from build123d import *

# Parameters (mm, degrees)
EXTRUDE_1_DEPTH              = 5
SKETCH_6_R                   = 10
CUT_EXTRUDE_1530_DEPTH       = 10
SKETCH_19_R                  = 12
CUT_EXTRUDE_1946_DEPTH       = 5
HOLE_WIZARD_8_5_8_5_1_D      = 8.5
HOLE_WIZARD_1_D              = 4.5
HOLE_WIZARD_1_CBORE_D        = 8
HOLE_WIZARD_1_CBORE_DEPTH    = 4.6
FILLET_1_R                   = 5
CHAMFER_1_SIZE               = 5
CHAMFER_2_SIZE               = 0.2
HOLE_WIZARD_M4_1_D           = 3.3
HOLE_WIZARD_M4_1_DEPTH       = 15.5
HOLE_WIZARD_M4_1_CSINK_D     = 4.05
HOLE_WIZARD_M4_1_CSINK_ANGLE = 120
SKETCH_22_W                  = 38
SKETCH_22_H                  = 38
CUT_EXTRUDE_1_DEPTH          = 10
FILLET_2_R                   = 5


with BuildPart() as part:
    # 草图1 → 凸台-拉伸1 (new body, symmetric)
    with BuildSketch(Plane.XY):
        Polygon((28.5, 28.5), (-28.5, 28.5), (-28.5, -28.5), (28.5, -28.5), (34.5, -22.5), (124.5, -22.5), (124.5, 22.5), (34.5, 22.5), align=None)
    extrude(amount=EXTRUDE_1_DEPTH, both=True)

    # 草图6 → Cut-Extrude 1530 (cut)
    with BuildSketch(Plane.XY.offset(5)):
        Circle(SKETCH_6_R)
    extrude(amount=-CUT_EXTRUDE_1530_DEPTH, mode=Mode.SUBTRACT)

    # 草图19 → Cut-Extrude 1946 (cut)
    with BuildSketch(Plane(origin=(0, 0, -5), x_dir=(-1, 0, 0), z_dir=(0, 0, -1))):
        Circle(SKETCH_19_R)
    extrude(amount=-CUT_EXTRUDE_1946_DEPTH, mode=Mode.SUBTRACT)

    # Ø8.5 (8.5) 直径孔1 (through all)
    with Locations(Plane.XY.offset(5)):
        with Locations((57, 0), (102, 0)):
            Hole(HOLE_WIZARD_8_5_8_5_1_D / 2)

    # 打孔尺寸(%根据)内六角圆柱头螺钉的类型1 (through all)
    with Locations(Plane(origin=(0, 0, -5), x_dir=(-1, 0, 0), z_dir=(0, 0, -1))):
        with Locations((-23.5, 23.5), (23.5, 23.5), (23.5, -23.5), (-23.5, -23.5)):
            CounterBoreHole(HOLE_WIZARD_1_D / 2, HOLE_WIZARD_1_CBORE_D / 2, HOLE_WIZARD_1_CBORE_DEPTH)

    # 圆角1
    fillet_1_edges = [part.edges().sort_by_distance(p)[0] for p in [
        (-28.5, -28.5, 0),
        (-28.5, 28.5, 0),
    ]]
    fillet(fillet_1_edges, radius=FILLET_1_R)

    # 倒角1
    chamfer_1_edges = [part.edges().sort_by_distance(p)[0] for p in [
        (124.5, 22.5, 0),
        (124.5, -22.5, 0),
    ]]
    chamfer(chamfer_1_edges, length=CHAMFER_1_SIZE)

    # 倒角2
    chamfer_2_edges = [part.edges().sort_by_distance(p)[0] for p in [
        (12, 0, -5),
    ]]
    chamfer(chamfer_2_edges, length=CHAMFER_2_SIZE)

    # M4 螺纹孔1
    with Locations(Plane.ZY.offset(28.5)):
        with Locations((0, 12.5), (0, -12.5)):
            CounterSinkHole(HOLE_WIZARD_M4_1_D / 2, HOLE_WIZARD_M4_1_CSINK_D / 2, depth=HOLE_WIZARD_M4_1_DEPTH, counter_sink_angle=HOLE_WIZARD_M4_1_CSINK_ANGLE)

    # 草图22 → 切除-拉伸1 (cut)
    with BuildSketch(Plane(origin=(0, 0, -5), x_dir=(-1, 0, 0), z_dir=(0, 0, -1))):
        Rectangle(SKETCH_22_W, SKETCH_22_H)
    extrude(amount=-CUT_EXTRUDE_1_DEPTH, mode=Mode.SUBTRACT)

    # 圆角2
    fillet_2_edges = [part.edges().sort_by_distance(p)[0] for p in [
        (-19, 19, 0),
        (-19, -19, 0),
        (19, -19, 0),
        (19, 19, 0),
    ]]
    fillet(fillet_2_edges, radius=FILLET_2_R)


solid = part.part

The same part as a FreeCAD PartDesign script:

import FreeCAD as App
import Part
import Sketcher
Q = App.Units.Quantity


def edges_at(feature, points):
    """Names of the edges that pass closest to the given points."""
    edges = feature.Shape.Edges
    near = lambda p: min(range(len(edges)), key=lambda i: edges[i].distToShape(Part.Vertex(*p))[0])
    return sorted({f"Edge{near(p) + 1}" for p in points})


def add_polygon(sketch, points):
    """Adds a closed chain of lines whose ends are joined by coincident constraints."""
    first, n = sketch.GeometryCount, len(points)
    for a, b in zip(points, points[1:] + points[:1]):
        sketch.addGeometry(Part.LineSegment(App.Vector(*a, 0), App.Vector(*b, 0)), False)
    for i in range(n):
        sketch.addConstraint(Sketcher.Constraint("Coincident", first + i, 2, first + (i + 1) % n, 1))

doc = App.newDocument("Part")
params = doc.addObject("Spreadsheet::Sheet", "Params")
for row, (alias, value) in enumerate([
    ("sketch1_width", "57 mm"),
    ("sketch1_width2", "90 mm"),
    ("sketch1_height", "45 mm"),
    ("pad1_length", "10 mm"),
    ("sketch2_diameter", "20 mm"),
    ("pocket1_length", "10 mm"),
    ("sketch3_diameter", "24 mm"),
    ("pocket2_length", "5 mm"),
    ("sketch4_diameter", "8.5 mm"),
    ("hole_diameter", "8.5 mm"),
    ("sketch5_diameter", "4.5 mm"),
    ("hole2_diameter", "4.5 mm"),
    ("hole2_cbore_diameter", "8 mm"),
    ("hole2_cbore_depth", "4.6 mm"),
    ("fillet_radius", "5 mm"),
    ("chamfer_size", "5 mm"),
    ("chamfer2_size", "0.2 mm"),
    ("sketch6_diameter", "3.3 mm"),
    ("hole3_diameter", "3.3 mm"),
    ("hole3_depth", "15.5 mm"),
    ("hole3_csink_diameter", "4.05 mm"),
    ("sketch7_width", "38 mm"),
    ("pocket3_length", "10 mm"),
    ("fillet2_radius", "5 mm"),
], start=1):
    params.set(f"A{row}", alias)
    params.set(f"B{row}", "=" + value)
    params.setAlias(f"B{row}", alias)

body = doc.addObject("PartDesign::Body", "Body")

sketch1 = body.newObject("Sketcher::SketchObject", "Sketch")
sketch1.AttachmentSupport = (doc.getObject("XY_Plane"), [""])
sketch1.MapMode = "FlatFace"
add_polygon(sketch1, [(28.5, 28.5), (-28.5, 28.5), (-28.5, -28.5), (28.5, -28.5), (34.5, -22.5), (124.5, -22.5), (124.5, 22.5), (34.5, 22.5)])
sketch1.addConstraint([
    Sketcher.Constraint("Horizontal", 0),
    Sketcher.Constraint("Vertical", 1),
    Sketcher.Constraint("Horizontal", 2),
    Sketcher.Constraint("Horizontal", 4),
    Sketcher.Constraint("Vertical", 5),
    Sketcher.Constraint("Horizontal", 6),
    Sketcher.Constraint("Symmetric", 0, 2, 2, 2, -1, 1),
    Sketcher.Constraint("Symmetric", 3, 2, 6, 2, -1),
    Sketcher.Constraint("Perpendicular", 3, 7),
    Sketcher.Constraint("Vertical", 2, 2, 7, 2),
    Sketcher.Constraint("Equal", 2, 1),
    Sketcher.Constraint("DistanceX", 0, 2, 0, 1, Q("57 mm")),
    Sketcher.Constraint("DistanceX", 4, 1, 4, 2, Q("90 mm")),
    Sketcher.Constraint("DistanceY", 5, 1, 5, 2, Q("45 mm")),
])
sketch1.setExpression("Constraints[19]", "Params.sketch1_width")
sketch1.setExpression("Constraints[20]", "Params.sketch1_width2")
sketch1.setExpression("Constraints[21]", "Params.sketch1_height")
pad1 = body.newObject("PartDesign::Pad", "Pad")
pad1.Profile = sketch1
pad1.setExpression("Length", "Params.pad1_length")
pad1.Midplane = True

sketch2 = body.newObject("Sketcher::SketchObject", "Sketch001")
sketch2.AttachmentSupport = (doc.getObject("XY_Plane"), [""])
sketch2.MapMode = "FlatFace"
sketch2.AttachmentOffset = App.Placement(App.Vector(0, 0, 5), App.Rotation())
sketch2.addGeometry(Part.Circle(App.Vector(0, 0, 0), App.Vector(0, 0, 1), 10), False)
sketch2.addConstraint([
    Sketcher.Constraint("Coincident", 0, 3, -1, 1),
    Sketcher.Constraint("Diameter", 0, Q("20 mm")),
])
sketch2.setExpression("Constraints[1]", "Params.sketch2_diameter")
pocket1 = body.newObject("PartDesign::Pocket", "Pocket")
pocket1.Profile = sketch2
pocket1.setExpression("Length", "Params.pocket1_length")

sketch3 = body.newObject("Sketcher::SketchObject", "Sketch002")
sketch3.AttachmentSupport = (doc.getObject("XY_Plane"), [""])
sketch3.MapMode = "FlatFace"
sketch3.AttachmentOffset = App.Placement(App.Vector(0, 0, -5), App.Rotation())
sketch3.addGeometry(Part.Circle(App.Vector(0, 0, 0), App.Vector(0, 0, 1), 12), False)
sketch3.addConstraint([
    Sketcher.Constraint("Coincident", 0, 3, -1, 1),
    Sketcher.Constraint("Diameter", 0, Q("24 mm")),
])
sketch3.setExpression("Constraints[1]", "Params.sketch3_diameter")
pocket2 = body.newObject("PartDesign::Pocket", "Pocket001")
pocket2.Profile = sketch3
pocket2.setExpression("Length", "Params.pocket2_length")
pocket2.Reversed = True

sketch4 = body.newObject("Sketcher::SketchObject", "Sketch003")
sketch4.AttachmentSupport = (doc.getObject("XY_Plane"), [""])
sketch4.MapMode = "FlatFace"
sketch4.AttachmentOffset = App.Placement(App.Vector(0, 0, 5), App.Rotation())
sketch4.addGeometry([
    Part.Circle(App.Vector(57, 0, 0), App.Vector(0, 0, 1), 4.25),
    Part.Circle(App.Vector(102, 0, 0), App.Vector(0, 0, 1), 4.25),
], False)
sketch4.addConstraint([
    Sketcher.Constraint("Equal", 0, 1),
    Sketcher.Constraint("PointOnObject", 0, 3, -1),
    Sketcher.Constraint("PointOnObject", 1, 3, -1),
    Sketcher.Constraint("Diameter", 0, Q("8.5 mm")),
    Sketcher.Constraint("DistanceX", -1, 1, 0, 3, Q("57 mm")),
    Sketcher.Constraint("DistanceX", -1, 1, 1, 3, Q("102 mm")),
])
sketch4.setExpression("Constraints[3]", "Params.sketch4_diameter")
doc.recompute()
hole = body.newObject("PartDesign::Hole", "Hole")
hole.Profile = sketch4
hole.ThreadType = "None"
hole.setExpression("Diameter", "Params.hole_diameter")
hole.DepthType = "ThroughAll"

sketch5 = body.newObject("Sketcher::SketchObject", "Sketch004")
sketch5.AttachmentSupport = (doc.getObject("XY_Plane"), [""])
sketch5.MapMode = "FlatFace"
sketch5.AttachmentOffset = App.Placement(App.Vector(0, 0, -5), App.Rotation())
sketch5.addGeometry([
    Part.Circle(App.Vector(23.5, 23.5, 0), App.Vector(0, 0, 1), 2.25),
    Part.Circle(App.Vector(-23.5, 23.5, 0), App.Vector(0, 0, 1), 2.25),
    Part.Circle(App.Vector(-23.5, -23.5, 0), App.Vector(0, 0, 1), 2.25),
    Part.Circle(App.Vector(23.5, -23.5, 0), App.Vector(0, 0, 1), 2.25),
], False)
sketch5.addConstraint([
    Sketcher.Constraint("Equal", 0, 1),
    Sketcher.Constraint("Equal", 1, 2),
    Sketcher.Constraint("Equal", 2, 3),
    Sketcher.Constraint("Symmetric", 0, 3, 2, 3, -1, 1),
    Sketcher.Constraint("Symmetric", 1, 3, 3, 3, -1, 1),
    Sketcher.Constraint("Symmetric", 0, 3, 1, 3, -2),
    Sketcher.Constraint("Diameter", 0, Q("4.5 mm")),
    Sketcher.Constraint("DistanceX", 1, 3, 0, 3, Q("47 mm")),
    Sketcher.Constraint("DistanceY", 2, 3, 1, 3, Q("47 mm")),
])
sketch5.setExpression("Constraints[6]", "Params.sketch5_diameter")
doc.recompute()
hole2 = body.newObject("PartDesign::Hole", "Hole001")
hole2.Profile = sketch5
hole2.ThreadType = "None"
hole2.setExpression("Diameter", "Params.hole2_diameter")
hole2.DepthType = "ThroughAll"
hole2.HoleCutType = "Counterbore"
hole2.setExpression("HoleCutDiameter", "Params.hole2_cbore_diameter")
hole2.setExpression("HoleCutDepth", "Params.hole2_cbore_depth")
hole2.Reversed = True
doc.recompute()

fillet = body.newObject("PartDesign::Fillet", "Fillet")
fillet.Base = (hole2, edges_at(hole2, [(-28.5, -28.5, 0), (-28.5, 28.5, 0)]))
fillet.setExpression("Radius", "Params.fillet_radius")
doc.recompute()

chamfer = body.newObject("PartDesign::Chamfer", "Chamfer")
chamfer.Base = (fillet, edges_at(fillet, [(124.5, 22.5, 0), (124.5, -22.5, 0)]))
chamfer.setExpression("Size", "Params.chamfer_size")
doc.recompute()

chamfer2 = body.newObject("PartDesign::Chamfer", "Chamfer001")
chamfer2.Base = (chamfer, edges_at(chamfer, [(12, 0, -5)]))
chamfer2.setExpression("Size", "Params.chamfer2_size")

sketch6 = body.newObject("Sketcher::SketchObject", "Sketch005")
sketch6.AttachmentSupport = (doc.getObject("YZ_Plane"), [""])
sketch6.MapMode = "FlatFace"
sketch6.AttachmentOffset = App.Placement(App.Vector(0, 0, -28.5), App.Rotation())
sketch6.addGeometry([
    Part.Circle(App.Vector(12.5, 0, 0), App.Vector(0, 0, 1), 1.65),
    Part.Circle(App.Vector(-12.5, 0, 0), App.Vector(0, 0, 1), 1.65),
], False)
sketch6.addConstraint([
    Sketcher.Constraint("Equal", 0, 1),
    Sketcher.Constraint("Symmetric", 0, 3, 1, 3, -1, 1),
    Sketcher.Constraint("PointOnObject", 0, 3, -1),
    Sketcher.Constraint("Diameter", 0, Q("3.3 mm")),
    Sketcher.Constraint("DistanceX", 1, 3, 0, 3, Q("25 mm")),
])
sketch6.setExpression("Constraints[3]", "Params.sketch6_diameter")
doc.recompute()
hole3 = body.newObject("PartDesign::Hole", "Hole002")
hole3.Profile = sketch6
hole3.ThreadType = "None"
hole3.setExpression("Diameter", "Params.hole3_diameter")
hole3.DepthType = "Dimension"
hole3.setExpression("Depth", "Params.hole3_depth")
hole3.DrillPoint = "Flat"
hole3.HoleCutType = "Countersink"
hole3.setExpression("HoleCutDiameter", "Params.hole3_csink_diameter")
hole3.HoleCutCountersinkAngle = 120
hole3.Reversed = True

sketch7 = body.newObject("Sketcher::SketchObject", "Sketch006")
sketch7.AttachmentSupport = (doc.getObject("XY_Plane"), [""])
sketch7.MapMode = "FlatFace"
sketch7.AttachmentOffset = App.Placement(App.Vector(0, 0, -5), App.Rotation())
add_polygon(sketch7, [(19, 19), (19, -19), (-19, -19), (-19, 19)])
sketch7.addConstraint([
    Sketcher.Constraint("Vertical", 0),
    Sketcher.Constraint("Horizontal", 1),
    Sketcher.Constraint("Vertical", 2),
    Sketcher.Constraint("Horizontal", 3),
    Sketcher.Constraint("Symmetric", 0, 2, 2, 2, -1, 1),
    Sketcher.Constraint("Equal", 3, 0),
    Sketcher.Constraint("DistanceX", 1, 2, 1, 1, Q("38 mm")),
])
sketch7.setExpression("Constraints[10]", "Params.sketch7_width")
pocket3 = body.newObject("PartDesign::Pocket", "Pocket002")
pocket3.Profile = sketch7
pocket3.setExpression("Length", "Params.pocket3_length")
pocket3.Reversed = True
doc.recompute()

fillet2 = body.newObject("PartDesign::Fillet", "Fillet001")
fillet2.Base = (pocket3, edges_at(pocket3, [
    (-19, 19, 0),
    (-19, -19, 0),
    (19, -19, 0),
    (19, 19, 0),
]))
fillet2.setExpression("Radius", "Params.fillet2_radius")

doc.recompute()
